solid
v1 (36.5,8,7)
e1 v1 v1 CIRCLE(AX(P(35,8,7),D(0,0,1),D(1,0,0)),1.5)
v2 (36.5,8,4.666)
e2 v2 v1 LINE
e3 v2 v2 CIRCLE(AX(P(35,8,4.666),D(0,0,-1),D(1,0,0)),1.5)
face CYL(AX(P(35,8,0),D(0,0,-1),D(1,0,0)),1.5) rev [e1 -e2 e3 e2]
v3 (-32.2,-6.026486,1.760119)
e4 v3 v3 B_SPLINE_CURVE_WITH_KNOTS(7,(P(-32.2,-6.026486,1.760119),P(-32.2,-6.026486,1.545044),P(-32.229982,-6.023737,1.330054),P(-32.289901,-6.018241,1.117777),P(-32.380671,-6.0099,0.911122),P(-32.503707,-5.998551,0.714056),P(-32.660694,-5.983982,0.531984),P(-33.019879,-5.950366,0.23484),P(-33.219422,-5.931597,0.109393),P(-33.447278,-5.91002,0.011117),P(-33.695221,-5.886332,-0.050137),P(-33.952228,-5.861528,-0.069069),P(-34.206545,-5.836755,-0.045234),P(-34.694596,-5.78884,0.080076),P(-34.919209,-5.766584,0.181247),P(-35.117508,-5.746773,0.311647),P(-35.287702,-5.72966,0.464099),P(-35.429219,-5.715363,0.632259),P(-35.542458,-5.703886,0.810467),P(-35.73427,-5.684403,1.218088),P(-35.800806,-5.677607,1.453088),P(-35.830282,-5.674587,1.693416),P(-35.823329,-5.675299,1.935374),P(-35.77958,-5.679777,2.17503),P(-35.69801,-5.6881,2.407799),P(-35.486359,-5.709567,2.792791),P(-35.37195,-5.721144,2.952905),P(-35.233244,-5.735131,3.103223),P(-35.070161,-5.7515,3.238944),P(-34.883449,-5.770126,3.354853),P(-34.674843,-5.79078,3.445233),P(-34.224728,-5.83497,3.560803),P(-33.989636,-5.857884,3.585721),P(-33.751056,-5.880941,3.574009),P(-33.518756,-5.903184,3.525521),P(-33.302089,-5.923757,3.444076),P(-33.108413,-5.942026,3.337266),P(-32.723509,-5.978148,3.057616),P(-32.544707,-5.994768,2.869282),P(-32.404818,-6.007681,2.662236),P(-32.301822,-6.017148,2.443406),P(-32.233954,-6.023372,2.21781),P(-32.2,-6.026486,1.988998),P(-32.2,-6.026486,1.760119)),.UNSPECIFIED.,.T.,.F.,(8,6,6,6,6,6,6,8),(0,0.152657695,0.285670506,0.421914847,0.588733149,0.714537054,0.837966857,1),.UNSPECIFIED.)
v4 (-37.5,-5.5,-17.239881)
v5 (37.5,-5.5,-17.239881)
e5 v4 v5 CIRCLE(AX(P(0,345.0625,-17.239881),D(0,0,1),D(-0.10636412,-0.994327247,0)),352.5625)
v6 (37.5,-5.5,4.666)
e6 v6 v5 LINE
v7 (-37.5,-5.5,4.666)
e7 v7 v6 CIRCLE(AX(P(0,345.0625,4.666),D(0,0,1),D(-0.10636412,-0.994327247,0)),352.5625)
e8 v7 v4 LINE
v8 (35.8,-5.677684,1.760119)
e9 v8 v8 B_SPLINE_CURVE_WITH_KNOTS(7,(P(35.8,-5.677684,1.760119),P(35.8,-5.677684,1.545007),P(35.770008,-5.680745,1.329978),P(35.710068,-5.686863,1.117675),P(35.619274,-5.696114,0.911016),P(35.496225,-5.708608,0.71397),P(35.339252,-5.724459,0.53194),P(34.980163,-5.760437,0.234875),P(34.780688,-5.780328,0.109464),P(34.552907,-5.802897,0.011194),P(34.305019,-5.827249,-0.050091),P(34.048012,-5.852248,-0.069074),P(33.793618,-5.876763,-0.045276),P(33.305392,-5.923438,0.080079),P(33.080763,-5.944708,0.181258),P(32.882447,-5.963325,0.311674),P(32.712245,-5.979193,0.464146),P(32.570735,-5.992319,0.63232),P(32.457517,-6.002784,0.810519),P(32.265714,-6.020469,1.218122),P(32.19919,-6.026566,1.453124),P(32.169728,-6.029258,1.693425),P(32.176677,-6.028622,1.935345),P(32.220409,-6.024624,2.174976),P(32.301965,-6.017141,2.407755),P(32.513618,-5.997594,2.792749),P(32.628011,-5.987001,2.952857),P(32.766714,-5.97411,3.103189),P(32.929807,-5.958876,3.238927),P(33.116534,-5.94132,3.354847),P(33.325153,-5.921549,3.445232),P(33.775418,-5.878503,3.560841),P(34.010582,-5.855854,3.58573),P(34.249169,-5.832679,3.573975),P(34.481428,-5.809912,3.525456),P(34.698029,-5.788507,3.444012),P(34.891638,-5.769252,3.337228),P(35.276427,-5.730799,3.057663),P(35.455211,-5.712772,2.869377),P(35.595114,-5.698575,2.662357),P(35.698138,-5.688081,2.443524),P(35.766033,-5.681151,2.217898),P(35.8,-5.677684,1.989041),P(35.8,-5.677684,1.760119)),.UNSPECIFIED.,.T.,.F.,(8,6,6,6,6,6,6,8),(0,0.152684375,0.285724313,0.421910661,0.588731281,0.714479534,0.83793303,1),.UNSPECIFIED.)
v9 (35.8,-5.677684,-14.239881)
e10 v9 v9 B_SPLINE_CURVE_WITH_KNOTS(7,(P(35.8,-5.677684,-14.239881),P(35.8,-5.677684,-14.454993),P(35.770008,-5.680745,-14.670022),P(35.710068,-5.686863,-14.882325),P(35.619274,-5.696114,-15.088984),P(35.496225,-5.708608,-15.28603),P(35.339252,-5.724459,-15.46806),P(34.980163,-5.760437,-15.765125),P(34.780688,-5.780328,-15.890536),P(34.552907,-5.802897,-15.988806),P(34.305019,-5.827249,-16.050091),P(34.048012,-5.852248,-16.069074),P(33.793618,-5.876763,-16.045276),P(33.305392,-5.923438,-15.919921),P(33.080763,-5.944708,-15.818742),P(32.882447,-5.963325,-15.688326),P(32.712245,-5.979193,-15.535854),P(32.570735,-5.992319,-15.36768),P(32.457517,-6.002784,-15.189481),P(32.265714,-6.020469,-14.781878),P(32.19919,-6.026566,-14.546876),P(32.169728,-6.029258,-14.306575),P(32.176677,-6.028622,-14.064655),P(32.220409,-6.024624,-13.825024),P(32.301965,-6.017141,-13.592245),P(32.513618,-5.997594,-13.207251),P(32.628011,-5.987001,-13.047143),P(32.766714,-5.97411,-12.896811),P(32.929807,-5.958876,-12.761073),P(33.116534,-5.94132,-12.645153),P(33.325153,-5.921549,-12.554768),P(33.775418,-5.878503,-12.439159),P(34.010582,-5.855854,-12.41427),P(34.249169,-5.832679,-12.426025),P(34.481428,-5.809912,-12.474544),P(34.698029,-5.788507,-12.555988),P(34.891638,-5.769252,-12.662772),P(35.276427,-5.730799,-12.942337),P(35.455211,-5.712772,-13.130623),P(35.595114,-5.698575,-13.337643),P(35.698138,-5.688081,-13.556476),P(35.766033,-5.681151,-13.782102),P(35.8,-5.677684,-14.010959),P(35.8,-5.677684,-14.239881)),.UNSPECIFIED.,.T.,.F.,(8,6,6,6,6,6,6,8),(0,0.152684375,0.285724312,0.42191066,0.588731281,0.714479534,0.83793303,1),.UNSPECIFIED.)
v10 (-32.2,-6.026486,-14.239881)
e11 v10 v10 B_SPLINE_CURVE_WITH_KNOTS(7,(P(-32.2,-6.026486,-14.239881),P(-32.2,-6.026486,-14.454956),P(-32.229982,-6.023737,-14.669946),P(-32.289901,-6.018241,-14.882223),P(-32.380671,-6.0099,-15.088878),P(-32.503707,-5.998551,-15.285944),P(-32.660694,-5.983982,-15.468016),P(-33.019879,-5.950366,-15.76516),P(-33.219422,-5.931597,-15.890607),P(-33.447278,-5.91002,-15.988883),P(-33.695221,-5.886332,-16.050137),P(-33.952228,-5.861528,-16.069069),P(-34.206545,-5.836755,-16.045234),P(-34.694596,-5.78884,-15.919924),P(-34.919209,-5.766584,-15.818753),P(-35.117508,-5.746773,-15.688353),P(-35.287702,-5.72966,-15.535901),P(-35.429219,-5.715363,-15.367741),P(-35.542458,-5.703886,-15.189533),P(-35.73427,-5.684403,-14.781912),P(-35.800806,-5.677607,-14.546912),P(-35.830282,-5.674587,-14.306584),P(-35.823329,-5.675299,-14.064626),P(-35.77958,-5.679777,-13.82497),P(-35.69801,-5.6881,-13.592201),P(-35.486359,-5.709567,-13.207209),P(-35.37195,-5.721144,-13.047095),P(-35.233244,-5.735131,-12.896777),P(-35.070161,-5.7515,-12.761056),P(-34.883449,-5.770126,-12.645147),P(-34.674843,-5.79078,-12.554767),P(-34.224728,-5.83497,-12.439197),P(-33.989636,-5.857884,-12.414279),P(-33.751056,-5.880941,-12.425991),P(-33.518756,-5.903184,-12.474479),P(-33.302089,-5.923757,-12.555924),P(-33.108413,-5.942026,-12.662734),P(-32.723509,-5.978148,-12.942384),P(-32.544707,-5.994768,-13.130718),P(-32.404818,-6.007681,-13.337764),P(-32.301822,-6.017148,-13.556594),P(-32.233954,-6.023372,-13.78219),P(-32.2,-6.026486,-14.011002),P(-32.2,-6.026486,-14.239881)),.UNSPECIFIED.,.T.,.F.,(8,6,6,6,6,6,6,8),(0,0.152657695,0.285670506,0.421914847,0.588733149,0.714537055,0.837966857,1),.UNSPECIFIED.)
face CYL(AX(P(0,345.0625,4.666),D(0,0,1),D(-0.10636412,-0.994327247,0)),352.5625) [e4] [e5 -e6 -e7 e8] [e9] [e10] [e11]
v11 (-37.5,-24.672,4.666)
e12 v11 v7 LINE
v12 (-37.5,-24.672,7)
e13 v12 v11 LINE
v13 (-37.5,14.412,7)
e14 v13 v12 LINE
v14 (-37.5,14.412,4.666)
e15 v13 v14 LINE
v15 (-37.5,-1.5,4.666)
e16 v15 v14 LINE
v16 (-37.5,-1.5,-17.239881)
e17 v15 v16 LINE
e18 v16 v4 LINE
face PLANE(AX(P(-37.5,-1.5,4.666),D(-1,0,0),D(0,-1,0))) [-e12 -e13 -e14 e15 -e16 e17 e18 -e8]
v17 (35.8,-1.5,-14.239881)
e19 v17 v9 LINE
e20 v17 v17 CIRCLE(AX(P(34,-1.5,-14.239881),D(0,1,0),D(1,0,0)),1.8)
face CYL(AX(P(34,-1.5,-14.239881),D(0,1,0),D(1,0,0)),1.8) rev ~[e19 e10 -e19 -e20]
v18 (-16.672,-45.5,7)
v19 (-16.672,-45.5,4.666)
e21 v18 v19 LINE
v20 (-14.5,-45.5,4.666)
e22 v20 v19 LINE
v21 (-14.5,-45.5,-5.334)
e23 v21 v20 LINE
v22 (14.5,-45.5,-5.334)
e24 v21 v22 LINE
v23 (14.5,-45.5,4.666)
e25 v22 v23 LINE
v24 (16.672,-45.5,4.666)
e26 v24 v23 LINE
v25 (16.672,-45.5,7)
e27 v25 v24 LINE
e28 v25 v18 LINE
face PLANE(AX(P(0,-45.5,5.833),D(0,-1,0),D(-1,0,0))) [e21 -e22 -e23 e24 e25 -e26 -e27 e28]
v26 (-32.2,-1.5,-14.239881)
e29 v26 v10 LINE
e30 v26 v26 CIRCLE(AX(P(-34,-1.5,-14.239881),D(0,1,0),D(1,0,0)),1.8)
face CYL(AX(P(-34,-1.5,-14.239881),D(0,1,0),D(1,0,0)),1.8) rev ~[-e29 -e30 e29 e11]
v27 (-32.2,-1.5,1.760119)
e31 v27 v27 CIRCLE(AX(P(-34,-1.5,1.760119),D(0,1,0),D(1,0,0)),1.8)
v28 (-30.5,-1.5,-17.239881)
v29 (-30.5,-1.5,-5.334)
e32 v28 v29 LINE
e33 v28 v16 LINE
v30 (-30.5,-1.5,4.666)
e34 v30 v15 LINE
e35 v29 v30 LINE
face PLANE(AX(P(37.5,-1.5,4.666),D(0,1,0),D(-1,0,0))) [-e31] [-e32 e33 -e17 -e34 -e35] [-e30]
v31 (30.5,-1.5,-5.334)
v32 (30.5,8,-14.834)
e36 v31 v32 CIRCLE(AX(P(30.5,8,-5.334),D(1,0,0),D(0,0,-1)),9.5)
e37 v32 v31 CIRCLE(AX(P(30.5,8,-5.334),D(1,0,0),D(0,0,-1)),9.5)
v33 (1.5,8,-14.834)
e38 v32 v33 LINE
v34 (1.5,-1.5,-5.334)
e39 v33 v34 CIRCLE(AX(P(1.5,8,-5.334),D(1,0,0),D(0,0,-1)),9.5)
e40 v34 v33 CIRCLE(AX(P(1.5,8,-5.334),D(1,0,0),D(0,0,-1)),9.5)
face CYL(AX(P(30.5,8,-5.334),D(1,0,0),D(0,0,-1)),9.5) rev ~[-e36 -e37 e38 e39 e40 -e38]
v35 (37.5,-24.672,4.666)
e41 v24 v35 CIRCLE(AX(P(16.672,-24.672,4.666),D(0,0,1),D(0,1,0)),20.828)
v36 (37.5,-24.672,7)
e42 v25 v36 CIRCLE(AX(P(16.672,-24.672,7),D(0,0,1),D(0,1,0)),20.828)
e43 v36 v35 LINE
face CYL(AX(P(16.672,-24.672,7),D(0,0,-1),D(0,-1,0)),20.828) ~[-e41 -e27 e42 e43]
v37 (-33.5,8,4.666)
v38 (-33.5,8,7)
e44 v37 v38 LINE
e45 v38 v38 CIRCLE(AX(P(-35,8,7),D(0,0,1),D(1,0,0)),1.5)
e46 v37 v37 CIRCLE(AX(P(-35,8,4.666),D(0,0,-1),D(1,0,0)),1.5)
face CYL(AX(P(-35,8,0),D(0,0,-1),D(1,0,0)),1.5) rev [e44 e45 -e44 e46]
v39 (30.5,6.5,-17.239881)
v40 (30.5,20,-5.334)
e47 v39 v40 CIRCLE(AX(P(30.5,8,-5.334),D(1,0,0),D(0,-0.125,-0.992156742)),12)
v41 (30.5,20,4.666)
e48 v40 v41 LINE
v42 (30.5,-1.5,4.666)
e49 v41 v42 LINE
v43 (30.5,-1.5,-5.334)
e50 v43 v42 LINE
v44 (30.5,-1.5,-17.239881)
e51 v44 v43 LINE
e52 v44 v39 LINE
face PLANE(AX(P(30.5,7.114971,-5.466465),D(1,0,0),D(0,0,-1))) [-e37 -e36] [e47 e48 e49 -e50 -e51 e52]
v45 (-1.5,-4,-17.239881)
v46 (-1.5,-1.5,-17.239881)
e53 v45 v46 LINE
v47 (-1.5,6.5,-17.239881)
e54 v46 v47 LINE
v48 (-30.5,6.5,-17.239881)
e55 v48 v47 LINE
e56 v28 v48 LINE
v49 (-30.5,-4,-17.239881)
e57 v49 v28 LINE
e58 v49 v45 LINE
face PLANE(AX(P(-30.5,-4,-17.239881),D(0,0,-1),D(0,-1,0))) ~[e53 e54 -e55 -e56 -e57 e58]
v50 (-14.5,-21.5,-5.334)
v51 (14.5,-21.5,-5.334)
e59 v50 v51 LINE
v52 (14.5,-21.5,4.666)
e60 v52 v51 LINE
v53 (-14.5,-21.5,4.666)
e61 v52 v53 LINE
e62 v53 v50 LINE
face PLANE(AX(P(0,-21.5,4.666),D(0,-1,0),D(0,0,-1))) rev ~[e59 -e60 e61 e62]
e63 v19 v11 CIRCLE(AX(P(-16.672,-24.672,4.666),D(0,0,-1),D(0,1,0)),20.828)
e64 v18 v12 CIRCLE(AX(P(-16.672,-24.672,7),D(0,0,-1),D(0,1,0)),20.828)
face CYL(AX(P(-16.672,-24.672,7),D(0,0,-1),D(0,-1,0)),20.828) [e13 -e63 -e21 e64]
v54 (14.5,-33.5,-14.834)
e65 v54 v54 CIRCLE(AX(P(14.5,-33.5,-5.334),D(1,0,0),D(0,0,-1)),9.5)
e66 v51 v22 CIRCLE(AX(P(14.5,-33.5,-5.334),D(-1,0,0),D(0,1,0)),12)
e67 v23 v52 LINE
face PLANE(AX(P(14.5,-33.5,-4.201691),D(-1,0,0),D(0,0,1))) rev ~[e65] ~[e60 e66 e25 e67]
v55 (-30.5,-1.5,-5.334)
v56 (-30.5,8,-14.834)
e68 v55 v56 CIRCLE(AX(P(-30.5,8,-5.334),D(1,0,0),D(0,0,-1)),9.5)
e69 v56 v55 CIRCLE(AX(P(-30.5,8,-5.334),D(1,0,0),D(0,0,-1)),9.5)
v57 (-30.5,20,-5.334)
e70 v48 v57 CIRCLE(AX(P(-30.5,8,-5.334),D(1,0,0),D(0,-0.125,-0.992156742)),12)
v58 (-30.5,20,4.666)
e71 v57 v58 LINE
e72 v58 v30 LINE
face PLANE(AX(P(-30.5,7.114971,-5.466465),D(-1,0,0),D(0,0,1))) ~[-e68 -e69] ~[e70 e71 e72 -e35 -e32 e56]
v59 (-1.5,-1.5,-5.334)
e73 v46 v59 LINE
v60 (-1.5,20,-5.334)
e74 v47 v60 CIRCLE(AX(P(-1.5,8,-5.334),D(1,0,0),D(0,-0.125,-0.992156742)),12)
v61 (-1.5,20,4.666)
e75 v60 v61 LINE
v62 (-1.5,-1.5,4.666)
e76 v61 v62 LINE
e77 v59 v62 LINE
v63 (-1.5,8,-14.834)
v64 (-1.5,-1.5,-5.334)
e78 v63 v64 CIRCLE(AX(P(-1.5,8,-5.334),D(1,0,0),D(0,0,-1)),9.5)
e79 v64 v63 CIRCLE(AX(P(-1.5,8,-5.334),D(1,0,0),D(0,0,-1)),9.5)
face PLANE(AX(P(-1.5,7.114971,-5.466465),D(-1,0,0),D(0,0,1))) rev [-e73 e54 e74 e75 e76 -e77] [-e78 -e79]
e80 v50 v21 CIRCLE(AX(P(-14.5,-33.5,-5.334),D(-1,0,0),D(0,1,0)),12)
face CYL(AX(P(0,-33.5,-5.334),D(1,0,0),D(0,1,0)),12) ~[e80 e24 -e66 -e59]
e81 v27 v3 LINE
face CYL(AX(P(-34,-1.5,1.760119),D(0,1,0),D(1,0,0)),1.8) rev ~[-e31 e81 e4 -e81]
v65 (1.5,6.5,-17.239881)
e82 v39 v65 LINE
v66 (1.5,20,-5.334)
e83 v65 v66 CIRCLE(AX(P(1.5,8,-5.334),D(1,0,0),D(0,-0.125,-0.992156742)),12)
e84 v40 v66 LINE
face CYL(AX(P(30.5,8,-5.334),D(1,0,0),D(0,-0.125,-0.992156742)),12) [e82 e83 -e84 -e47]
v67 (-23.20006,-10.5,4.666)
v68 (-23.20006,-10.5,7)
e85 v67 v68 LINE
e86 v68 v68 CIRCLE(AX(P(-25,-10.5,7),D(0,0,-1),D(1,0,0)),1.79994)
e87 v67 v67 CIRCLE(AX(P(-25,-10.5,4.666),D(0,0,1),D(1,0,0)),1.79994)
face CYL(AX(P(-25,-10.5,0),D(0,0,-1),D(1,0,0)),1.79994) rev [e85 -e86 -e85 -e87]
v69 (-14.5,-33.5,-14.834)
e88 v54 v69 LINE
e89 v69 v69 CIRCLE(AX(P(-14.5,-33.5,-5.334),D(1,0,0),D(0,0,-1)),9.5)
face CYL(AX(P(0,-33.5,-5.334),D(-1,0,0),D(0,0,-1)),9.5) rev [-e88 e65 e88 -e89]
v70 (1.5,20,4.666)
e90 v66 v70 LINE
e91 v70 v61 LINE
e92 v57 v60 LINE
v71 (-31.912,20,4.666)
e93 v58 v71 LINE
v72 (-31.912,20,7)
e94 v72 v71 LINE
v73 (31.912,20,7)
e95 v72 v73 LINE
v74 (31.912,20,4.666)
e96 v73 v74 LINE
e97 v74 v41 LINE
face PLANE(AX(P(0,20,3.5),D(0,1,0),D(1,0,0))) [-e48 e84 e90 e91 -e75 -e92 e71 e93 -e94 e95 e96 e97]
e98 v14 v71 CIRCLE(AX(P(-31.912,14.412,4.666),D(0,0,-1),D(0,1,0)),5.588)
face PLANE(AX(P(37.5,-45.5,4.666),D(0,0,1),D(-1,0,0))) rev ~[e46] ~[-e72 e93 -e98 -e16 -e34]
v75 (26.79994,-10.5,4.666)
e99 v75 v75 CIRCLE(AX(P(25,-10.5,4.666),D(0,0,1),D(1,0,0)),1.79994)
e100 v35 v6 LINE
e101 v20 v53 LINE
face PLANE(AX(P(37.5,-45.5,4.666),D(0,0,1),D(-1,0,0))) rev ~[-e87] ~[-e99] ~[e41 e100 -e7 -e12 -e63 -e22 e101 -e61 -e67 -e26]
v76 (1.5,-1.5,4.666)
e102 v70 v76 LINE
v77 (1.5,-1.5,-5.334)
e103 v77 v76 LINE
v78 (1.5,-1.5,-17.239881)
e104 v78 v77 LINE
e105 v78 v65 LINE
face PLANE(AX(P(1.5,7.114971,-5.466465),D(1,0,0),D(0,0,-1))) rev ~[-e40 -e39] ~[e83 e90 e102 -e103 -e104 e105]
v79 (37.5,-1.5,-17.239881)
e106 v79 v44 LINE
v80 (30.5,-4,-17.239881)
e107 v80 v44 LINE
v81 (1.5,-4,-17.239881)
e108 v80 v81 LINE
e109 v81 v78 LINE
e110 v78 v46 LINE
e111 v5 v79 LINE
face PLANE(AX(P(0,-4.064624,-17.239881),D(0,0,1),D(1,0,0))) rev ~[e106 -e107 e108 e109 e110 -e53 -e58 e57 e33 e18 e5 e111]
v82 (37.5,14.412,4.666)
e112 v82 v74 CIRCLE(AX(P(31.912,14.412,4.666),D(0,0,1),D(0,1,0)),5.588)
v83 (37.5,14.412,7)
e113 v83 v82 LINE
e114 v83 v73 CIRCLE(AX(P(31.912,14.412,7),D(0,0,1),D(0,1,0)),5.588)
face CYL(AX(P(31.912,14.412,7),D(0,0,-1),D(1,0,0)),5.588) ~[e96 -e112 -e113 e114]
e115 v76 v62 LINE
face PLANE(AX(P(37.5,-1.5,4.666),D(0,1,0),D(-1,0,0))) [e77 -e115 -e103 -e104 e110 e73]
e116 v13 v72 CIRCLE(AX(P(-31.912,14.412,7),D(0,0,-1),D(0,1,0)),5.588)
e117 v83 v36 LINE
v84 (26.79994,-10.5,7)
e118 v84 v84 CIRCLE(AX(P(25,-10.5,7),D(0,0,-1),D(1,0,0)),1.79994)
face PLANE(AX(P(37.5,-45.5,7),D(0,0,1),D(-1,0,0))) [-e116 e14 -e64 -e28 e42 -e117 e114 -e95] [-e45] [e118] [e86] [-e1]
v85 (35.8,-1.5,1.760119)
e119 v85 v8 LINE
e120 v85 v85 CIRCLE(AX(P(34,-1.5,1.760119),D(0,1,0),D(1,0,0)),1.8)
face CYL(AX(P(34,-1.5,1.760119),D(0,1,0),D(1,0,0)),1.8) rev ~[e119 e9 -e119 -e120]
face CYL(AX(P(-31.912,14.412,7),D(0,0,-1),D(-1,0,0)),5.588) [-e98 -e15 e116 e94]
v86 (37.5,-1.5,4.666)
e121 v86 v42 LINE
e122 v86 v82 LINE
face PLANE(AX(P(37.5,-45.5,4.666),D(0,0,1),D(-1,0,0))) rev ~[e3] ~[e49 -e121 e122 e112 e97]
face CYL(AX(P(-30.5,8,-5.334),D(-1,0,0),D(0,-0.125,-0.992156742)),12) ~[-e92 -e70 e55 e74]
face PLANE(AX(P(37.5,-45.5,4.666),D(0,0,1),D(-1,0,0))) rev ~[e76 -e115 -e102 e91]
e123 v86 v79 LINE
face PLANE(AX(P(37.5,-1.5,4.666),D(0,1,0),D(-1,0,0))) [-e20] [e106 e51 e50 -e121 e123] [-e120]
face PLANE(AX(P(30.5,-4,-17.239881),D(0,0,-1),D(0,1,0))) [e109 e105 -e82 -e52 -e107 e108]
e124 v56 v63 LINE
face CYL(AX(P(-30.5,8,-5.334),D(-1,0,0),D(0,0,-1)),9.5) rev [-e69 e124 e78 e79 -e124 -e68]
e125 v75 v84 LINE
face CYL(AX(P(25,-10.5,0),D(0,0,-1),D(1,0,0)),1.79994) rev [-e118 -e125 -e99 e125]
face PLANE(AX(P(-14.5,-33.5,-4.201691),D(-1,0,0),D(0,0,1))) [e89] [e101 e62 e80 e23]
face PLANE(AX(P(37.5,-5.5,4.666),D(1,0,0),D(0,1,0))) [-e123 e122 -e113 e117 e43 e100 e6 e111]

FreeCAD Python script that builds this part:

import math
import FreeCAD as App
import Part
import Sketcher

V = App.Vector
Q = App.Units.Quantity


def edges_at(feature, points):
    """Names of the edges that pass closest to the given points."""
    edges = feature.Shape.Edges
    near = lambda p: min(range(len(edges)), key=lambda i: edges[i].distToShape(Part.Vertex(*p))[0])
    return sorted({f"Edge{near(p) + 1}" for p in points})


def add_polygon(sketch, points):
    """Adds a closed chain of lines whose ends are joined by coincident constraints."""
    first, n = sketch.GeometryCount, len(points)
    for a, b in zip(points, points[1:] + points[:1]):
        sketch.addGeometry(Part.LineSegment(App.Vector(*a, 0), App.Vector(*b, 0)), False)
    for i in range(n):
        sketch.addConstraint(Sketcher.Constraint("Coincident", first + i, 2, first + (i + 1) % n, 1))

doc = App.newDocument("Part")
body = doc.addObject("PartDesign::Body", "Body")

# Sketch on XY plane
sketch1 = doc.addObject("Sketcher::SketchObject", "Sketch")
body.addObject(sketch1)
sketch1.AttachmentSupport = (doc.XY_Plane, [""])
sketch1.MapMode = "FlatFace"
sketch1.addGeometry([
    Part.LineSegment(V(30, -10.5, 0), V(37.5, -10.5, 0)),  # 0
    Part.LineSegment(V(37.5, -10.5, 0), V(37.5, 10.5, 0)),  # 1
    Part.LineSegment(V(37.5, 10.5, 0), V(-37.5, 10.5, 0)),  # 2
    Part.LineSegment(V(-37.5, 10.5, 0), V(-37.5, -10.5, 0)),  # 3
    Part.LineSegment(V(-37.5, -10.5, 0), V(-30, -10.5, 0)),  # 4
    Part.ArcOfCircle(Part.Circle(V(-25, -10.5, 0), V(0, 0, 1), 5), math.radians(180), math.radians(360)),  # 5
    Part.LineSegment(V(-20, -10.5, 0), V(-5, -10.5, 0)),  # 6
    Part.ArcOfCircle(Part.Circle(V(0, -10.5, 0), V(0, 0, 1), 5), math.radians(180), math.radians(360)),  # 7
    Part.LineSegment(V(5, -10.5, 0), V(20, -10.5, 0)),  # 8
    Part.ArcOfCircle(Part.Circle(V(25, -10.5, 0), V(0, 0, 1), 5), math.radians(180), math.radians(360)),  # 9
    Part.Circle(V(25, -10.5, 0), V(0, 0, 1), 1.79994),  # 10
    Part.Circle(V(0, -10.5, 0), V(0, 0, 1), 1.79994),  # 11
    Part.Circle(V(-25, -10.5, 0), V(0, 0, 1), 1.79994),  # 12
    Part.Circle(V(35, 8, 0), V(0, 0, 1), 1.5),  # 13
    Part.Circle(V(15, 8, 0), V(0, 0, 1), 1.5),  # 14
    Part.Circle(V(10, 8, 0), V(0, 0, 1), 1.5),  # 15
    Part.Circle(V(-10, 8, 0), V(0, 0, 1), 1.5),  # 16
    Part.Circle(V(-15, 8, 0), V(0, 0, 1), 1.5),  # 17
    Part.Circle(V(-35, 8, 0), V(0, 0, 1), 1.5),  # 18
], False)
sketch1.addConstraint([
    Sketcher.Constraint("Coincident", 0, 2, 1, 1),
    Sketcher.Constraint("Coincident", 1, 2, 2, 1),
    Sketcher.Constraint("Coincident", 2, 2, 3, 1),
    Sketcher.Constraint("Coincident", 3, 2, 4, 1),
    Sketcher.Constraint("Coincident", 4, 2, 5, 1),
    Sketcher.Constraint("Coincident", 5, 2, 6, 1),
    Sketcher.Constraint("Coincident", 6, 2, 7, 1),
    Sketcher.Constraint("Coincident", 7, 2, 8, 1),
    Sketcher.Constraint("Coincident", 8, 2, 9, 1),
    Sketcher.Constraint("Coincident", 9, 2, 0, 1),
    Sketcher.Constraint("Horizontal", 0),
    Sketcher.Constraint("Vertical", 1),
    Sketcher.Constraint("Horizontal", 2),
    Sketcher.Constraint("Vertical", 3),
    Sketcher.Constraint("Horizontal", 4),
    Sketcher.Constraint("Horizontal", 6),
    Sketcher.Constraint("Horizontal", 8),
    Sketcher.Constraint("Coincident", 10, 3, 9, 3),
    Sketcher.Constraint("Coincident", 11, 3, 7, 3),
    Sketcher.Constraint("Coincident", 12, 3, 5, 3),
    Sketcher.Constraint("Equal", 5, 7),
    Sketcher.Constraint("Equal", 7, 9),
    Sketcher.Constraint("Equal", 10, 11),
    Sketcher.Constraint("Equal", 11, 12),
    Sketcher.Constraint("Equal", 13, 14),
    Sketcher.Constraint("Equal", 14, 15),
    Sketcher.Constraint("Equal", 15, 16),
    Sketcher.Constraint("Equal", 16, 17),
    Sketcher.Constraint("Equal", 17, 18),
    Sketcher.Constraint("Symmetric", 0, 2, 2, 2, -1, 1),
    Sketcher.Constraint("Symmetric", 5, 3, 9, 3, -2),
    Sketcher.Constraint("Symmetric", 15, 3, 16, 3, -2),
    Sketcher.Constraint("Symmetric", 14, 3, 17, 3, -2),
    Sketcher.Constraint("Symmetric", 13, 3, 18, 3, -2),
    Sketcher.Constraint("Symmetric", 6, 2, 7, 2, -2),
    Sketcher.Constraint("Horizontal", 5, 3, 7, 3),
    Sketcher.Constraint("Horizontal", 13, 3, 14, 3),
    Sketcher.Constraint("Horizontal", 14, 3, 15, 3),
    Sketcher.Constraint("Horizontal", 12, 3, 0, 2),
    Sketcher.Constraint("Horizontal", 0, 2, 3, 2),
    Sketcher.Constraint("Horizontal", 4, 2, 5, 2),
    Sketcher.Constraint("Diameter", 13, Q("3 mm")),
    Sketcher.Constraint("Radius", 5, Q("5 mm")),
    Sketcher.Constraint("DistanceX", 2, 2, 2, 1, Q("75 mm")),
    Sketcher.Constraint("DistanceX", 6, 1, 6, 2, Q("15 mm")),
    Sketcher.Constraint("DistanceY", 1, 1, 1, 2, Q("21 mm")),
    Sketcher.Constraint("DistanceX", -1, 1, 13, 3, Q("35 mm")),
    Sketcher.Constraint("DistanceY", -1, 1, 13, 3, Q("8 mm")),
    Sketcher.Constraint("DistanceX", -1, 1, 14, 3, Q("15 mm")),
    Sketcher.Constraint("DistanceX", -1, 1, 15, 3, Q("10 mm")),
    Sketcher.Constraint("Diameter", 10, Q("3.59988 mm")),
])
pad1 = doc.addObject("PartDesign::Pad", "Pad")
body.addObject(pad1)
pad1.Profile = sketch1
pad1.Length = 7

# Sketch on XZ plane
sketch2 = doc.addObject("Sketcher::SketchObject", "Sketch001")
body.addObject(sketch2)
sketch2.AttachmentSupport = (doc.XZ_Plane, [""])
sketch2.MapMode = "FlatFace"
sketch2.AttachmentOffset = App.Placement(V(0, 0, -2.25), App.Rotation())
add_polygon(sketch2, [(-37.5, 7), (-37.5, 20.1), (37.5, 20.1), (37.5, 7)])  # lines 0-3
sketch2.addGeometry(Part.Circle(V(-31.00014, 13.55, 0), V(0, 0, 1), 1.349845), False)  # 4
sketch2.addGeometry(Part.Circle(V(-25, 13.55, 0), V(0, 0, 1), 2.499995), False)  # 5
sketch2.addGeometry(Part.Circle(V(-18.99986, 13.55, 0), V(0, 0, 1), 1.349845), False)  # 6
sketch2.addGeometry(Part.Circle(V(-6.00014, 13.55, 0), V(0, 0, 1), 1.349845), False)  # 7
sketch2.addGeometry(Part.Circle(V(0, 13.55, 0), V(0, 0, 1), 2.499995), False)  # 8
sketch2.addGeometry(Part.Circle(V(6.00014, 13.55, 0), V(0, 0, 1), 1.349845), False)  # 9
sketch2.addGeometry(Part.Circle(V(18.99986, 13.55, 0), V(0, 0, 1), 1.349845), False)  # 10
sketch2.addGeometry(Part.Circle(V(25, 13.55, 0), V(0, 0, 1), 2.499995), False)  # 11
sketch2.addGeometry(Part.Circle(V(31.00014, 13.55, 0), V(0, 0, 1), 1.349845), False)  # 12
sketch2.addConstraint([
    Sketcher.Constraint("Vertical", 0),
    Sketcher.Constraint("Horizontal", 1),
    Sketcher.Constraint("Vertical", 2),
    Sketcher.Constraint("Horizontal", 3),
    Sketcher.Constraint("Equal", 4, 6),
    Sketcher.Constraint("Equal", 6, 7),
    Sketcher.Constraint("Equal", 5, 8),
    Sketcher.Constraint("Equal", 7, 9),
    Sketcher.Constraint("Equal", 9, 10),
    Sketcher.Constraint("Equal", 8, 11),
    Sketcher.Constraint("Equal", 10, 12),
    Sketcher.Constraint("Symmetric", 7, 3, 9, 3, -2),
    Sketcher.Constraint("Symmetric", 6, 3, 10, 3, -2),
    Sketcher.Constraint("Symmetric", 5, 3, 11, 3, -2),
    Sketcher.Constraint("Symmetric", 4, 3, 12, 3, -2),
    Sketcher.Constraint("PointOnObject", 8, 3, -2),
    Sketcher.Constraint("Horizontal", 4, 3, 5, 3),
    Sketcher.Constraint("Horizontal", 5, 3, 6, 3),
    Sketcher.Constraint("Horizontal", 6, 3, 7, 3),
    Sketcher.Constraint("Horizontal", 7, 3, 8, 3),
    Sketcher.Constraint("DistanceX", 1, 1, 1, 2, Q("75 mm")),
    Sketcher.Constraint("DistanceY", 0, 1, 0, 2, Q("13.1 mm")),
    Sketcher.Constraint("DistanceX", 5, 3, -1, 1, Q("25 mm")),
    Sketcher.Constraint("DistanceY", -1, 1, 2, 2, Q("7 mm")),
    Sketcher.Constraint("DistanceX", 4, 3, 7, 3, Q("25 mm")),
    Sketcher.Constraint("DistanceX", 6, 3, 9, 3, Q("25 mm")),
    Sketcher.Constraint("DistanceX", 0, 2, -1, 1, Q("37.5 mm")),
    Sketcher.Constraint("Diameter", 4, Q("2.69969 mm")),
    Sketcher.Constraint("Diameter", 5, Q("4.99999 mm")),
    Sketcher.Constraint("DistanceY", -1, 1, 4, 3, Q("13.55 mm")),
    Sketcher.Constraint("DistanceX", 4, 3, -1, 1, Q("31.00014 mm")),
])
pad2 = doc.addObject("PartDesign::Pad", "Pad001")
body.addObject(pad2)
pad2.Profile = sketch2
pad2.Length = 6.988

# Sketch on XZ plane
sketch3 = doc.addObject("Sketcher::SketchObject", "Sketch002")
body.addObject(sketch3)
sketch3.AttachmentSupport = (doc.XZ_Plane, [""])
sketch3.MapMode = "FlatFace"
sketch3.AttachmentOffset = App.Placement(V(0, 0, -2.25), App.Rotation())
sketch3.addGeometry([
    Part.Circle(V(-31.00014, 13.55, 0), V(0, 0, 1), 2.699944),  # 0
    Part.Circle(V(-31.00014, 13.55, 0), V(0, 0, 1), 1.349845),  # 1
    Part.Circle(V(-18.99986, 13.55, 0), V(0, 0, 1), 2.699944),  # 2
    Part.Circle(V(-18.99986, 13.55, 0), V(0, 0, 1), 1.349845),  # 3
    Part.Circle(V(-6.00014, 13.55, 0), V(0, 0, 1), 2.699944),  # 4
    Part.Circle(V(-6.00014, 13.55, 0), V(0, 0, 1), 1.349845),  # 5
    Part.Circle(V(6.00014, 13.55, 0), V(0, 0, 1), 2.699944),  # 6
    Part.Circle(V(6.00014, 13.55, 0), V(0, 0, 1), 1.349845),  # 7
    Part.Circle(V(18.99986, 13.55, 0), V(0, 0, 1), 2.699944),  # 8
    Part.Circle(V(18.99986, 13.55, 0), V(0, 0, 1), 1.349845),  # 9
    Part.Circle(V(31.00014, 13.55, 0), V(0, 0, 1), 2.699944),  # 10
    Part.Circle(V(31.00014, 13.55, 0), V(0, 0, 1), 1.349845),  # 11
], False)
sketch3.addConstraint([
    Sketcher.Constraint("Coincident", 1, 3, 0, 3),
    Sketcher.Constraint("Coincident", 3, 3, 2, 3),
    Sketcher.Constraint("Coincident", 5, 3, 4, 3),
    Sketcher.Constraint("Coincident", 7, 3, 6, 3),
    Sketcher.Constraint("Coincident", 9, 3, 8, 3),
    Sketcher.Constraint("Coincident", 11, 3, 10, 3),
    Sketcher.Constraint("Equal", 0, 2),
    Sketcher.Constraint("Equal", 1, 3),
    Sketcher.Constraint("Equal", 2, 4),
    Sketcher.Constraint("Equal", 3, 5),
    Sketcher.Constraint("Equal", 4, 6),
    Sketcher.Constraint("Equal", 5, 7),
    Sketcher.Constraint("Equal", 6, 8),
    Sketcher.Constraint("Equal", 7, 9),
    Sketcher.Constraint("Equal", 8, 10),
    Sketcher.Constraint("Equal", 9, 11),
    Sketcher.Constraint("Symmetric", 4, 3, 6, 3, -2),
    Sketcher.Constraint("Symmetric", 2, 3, 8, 3, -2),
    Sketcher.Constraint("Symmetric", 0, 3, 10, 3, -2),
    Sketcher.Constraint("Horizontal", 1, 3, 2, 3),
    Sketcher.Constraint("Horizontal", 3, 3, 4, 3),
    Sketcher.Constraint("DistanceX", 0, 3, 4, 3, Q("25 mm")),
    Sketcher.Constraint("DistanceX", 2, 3, 6, 3, Q("25 mm")),
    Sketcher.Constraint("Diameter", 1, Q("2.69969 mm")),
    Sketcher.Constraint("DistanceY", -1, 1, 0, 3, Q("13.55 mm")),
    Sketcher.Constraint("Diameter", 0, Q("5.399888 mm")),
    Sketcher.Constraint("DistanceX", 0, 3, -1, 1, Q("31.00014 mm")),
])
pocket1 = doc.addObject("PartDesign::Pocket", "Pocket")
body.addObject(pocket1)
pocket1.Profile = sketch3
pocket1.Length = 2.5
pocket1.Reversed = True

# Sketch on XZ plane
sketch4 = doc.addObject("Sketcher::SketchObject", "Sketch003")
body.addObject(sketch4)
sketch4.AttachmentSupport = (doc.XZ_Plane, [""])
sketch4.MapMode = "FlatFace"
sketch4.AttachmentOffset = App.Placement(V(0, 0, -2.25), App.Rotation())
add_polygon(sketch4, [(-37.5, 7), (-37.5, 20.1), (37.5, 20.1), (37.5, 7)])  # lines 0-3
sketch4.addConstraint([
    Sketcher.Constraint("Vertical", 0),
    Sketcher.Constraint("Horizontal", 1),
    Sketcher.Constraint("Vertical", 2),
    Sketcher.Constraint("Horizontal", 3),
    Sketcher.Constraint("DistanceX", 1, 1, 1, 2, Q("75 mm")),
    Sketcher.Constraint("DistanceY", 0, 1, 0, 2, Q("13.1 mm")),
    Sketcher.Constraint("DistanceY", -1, 1, 2, 2, Q("7 mm")),
    Sketcher.Constraint("DistanceX", 0, 2, -1, 1, Q("37.5 mm")),
])
pocket2 = doc.addObject("PartDesign::Pocket", "Pocket001")
body.addObject(pocket2)
pocket2.Profile = sketch4
pocket2.Length = 21.082
pocket2.Reversed = True

# Sketch on XZ plane
sketch5 = doc.addObject("Sketcher::SketchObject", "Sketch004")
body.addObject(sketch5)
sketch5.AttachmentSupport = (doc.XZ_Plane, [""])
sketch5.MapMode = "FlatFace"
sketch5.AttachmentOffset = App.Placement(V(0, 0, -10.5), App.Rotation())
add_polygon(sketch5, [(-37.5, 0), (-37.5, 7), (37.5, 7), (37.5, 0)])  # lines 0-3
sketch5.addConstraint([
    Sketcher.Constraint("Vertical", 0),
    Sketcher.Constraint("Horizontal", 1),
    Sketcher.Constraint("Vertical", 2),
    Sketcher.Constraint("Horizontal", 3),
    Sketcher.Constraint("Symmetric", 2, 2, 3, 2, -1, 1),
    Sketcher.Constraint("DistanceX", 1, 1, 1, 2, Q("75 mm")),
    Sketcher.Constraint("DistanceY", 0, 1, 0, 2, Q("7 mm")),
])
pad3 = doc.addObject("PartDesign::Pad", "Pad002")
body.addObject(pad3)
pad3.Profile = sketch5
pad3.Length = 9.5
pad3.Reversed = True

# Sketch on XY plane
sketch6 = doc.addObject("Sketcher::SketchObject", "Sketch005")
body.addObject(sketch6)
sketch6.AttachmentSupport = (doc.XY_Plane, [""])
sketch6.MapMode = "FlatFace"
add_polygon(sketch6, [(37.5, 20), (37.5, -18.030205), (-37.5, -18.030205), (-37.5, 20)])  # lines 0-3
sketch6.addConstraint([
    Sketcher.Constraint("Vertical", 0),
    Sketcher.Constraint("Horizontal", 1),
    Sketcher.Constraint("Vertical", 2),
    Sketcher.Constraint("Horizontal", 3),
    Sketcher.Constraint("DistanceX", 1, 2, 1, 1, Q("75 mm")),
    Sketcher.Constraint("DistanceY", -1, 1, 2, 2, Q("20 mm")),
    Sketcher.Constraint("DistanceX", -1, 1, 0, 2, Q("37.5 mm")),
    Sketcher.Constraint("DistanceY", 0, 2, 0, 1, Q("38.030205 mm")),
])
pocket3 = doc.addObject("PartDesign::Pocket", "Pocket002")
body.addObject(pocket3)
pocket3.Profile = sketch6
pocket3.Length = 4.666
pocket3.Reversed = True

# Sketch on XZ plane
sketch7 = doc.addObject("Sketcher::SketchObject", "Sketch006")
body.addObject(sketch7)
sketch7.AttachmentSupport = (doc.XZ_Plane, [""])
sketch7.MapMode = "FlatFace"
sketch7.AttachmentOffset = App.Placement(V(0, 0, 45.5), App.Rotation())
add_polygon(sketch7, [(37.5, 4.666), (37.5, 7), (-37.5, 7), (-37.5, 4.666)])  # lines 0-3
sketch7.addConstraint([
    Sketcher.Constraint("Vertical", 0),
    Sketcher.Constraint("Horizontal", 1),
    Sketcher.Constraint("Vertical", 2),
    Sketcher.Constraint("Horizontal", 3),
    Sketcher.Constraint("DistanceX", 1, 2, 1, 1, Q("75 mm")),
    Sketcher.Constraint("DistanceY", -1, 1, 0, 2, Q("7 mm")),
    Sketcher.Constraint("DistanceX", -1, 1, 0, 2, Q("37.5 mm")),
    Sketcher.Constraint("DistanceY", 0, 1, 0, 2, Q("2.334 mm")),
])
pad4 = doc.addObject("PartDesign::Pad", "Pad003")
body.addObject(pad4)
pad4.Profile = sketch7
pad4.Length = 35
pad4.Reversed = True

# Sketch on XY plane
sketch8 = doc.addObject("Sketcher::SketchObject", "Sketch007")
body.addObject(sketch8)
sketch8.AttachmentSupport = (doc.XY_Plane, [""])
sketch8.MapMode = "FlatFace"
sketch8.AttachmentOffset = App.Placement(V(0, 0, 4.666), App.Rotation())
sketch8.addGeometry([
    Part.Circle(V(25, -10.5, 0), V(0, 0, 1), 1.79994),
    Part.Circle(V(0, -10.5, 0), V(0, 0, 1), 1.79994),
    Part.Circle(V(-25, -10.5, 0), V(0, 0, 1), 1.79994),
], False)
sketch8.addConstraint([
    Sketcher.Constraint("Equal", 0, 1),
    Sketcher.Constraint("Equal", 1, 2),
    Sketcher.Constraint("Symmetric", 0, 3, 2, 3, -2),
    Sketcher.Constraint("PointOnObject", 1, 3, -2),
    Sketcher.Constraint("Horizontal", 0, 3, 1, 3),
    Sketcher.Constraint("DistanceX", -1, 1, 0, 3, Q("25 mm")),
    Sketcher.Constraint("DistanceY", 0, 3, -1, 1, Q("10.5 mm")),
    Sketcher.Constraint("Diameter", 0, Q("3.59988 mm")),
])
pocket4 = doc.addObject("PartDesign::Pocket", "Pocket003")
body.addObject(pocket4)
pocket4.Profile = sketch8
pocket4.Length = 5
pocket4.Reversed = True

# Sketch on XY plane
sketch9 = doc.addObject("Sketcher::SketchObject", "Sketch008")
body.addObject(sketch9)
sketch9.AttachmentSupport = (doc.XY_Plane, [""])
sketch9.MapMode = "FlatFace"
sketch9.AttachmentOffset = App.Placement(V(0, 0, 7), App.Rotation())
add_polygon(sketch9, [(-20.522323, 15.612576), (-20.522323, 1.995274), (24.131207, 1.995274), (24.131207, 15.612576)])  # lines 0-3
add_polygon(sketch9, [(-7.365324, -8.293911), (-7.365324, -14.281449), (4.362942, -14.281449), (4.362942, -8.293911)])  # lines 4-7
sketch9.addConstraint([
    Sketcher.Constraint("Vertical", 0),
    Sketcher.Constraint("Horizontal", 1),
    Sketcher.Constraint("Vertical", 2),
    Sketcher.Constraint("Horizontal", 3),
    Sketcher.Constraint("Vertical", 4),
    Sketcher.Constraint("Horizontal", 5),
    Sketcher.Constraint("Vertical", 6),
    Sketcher.Constraint("Horizontal", 7),
    Sketcher.Constraint("DistanceY", 0, 2, 0, 1, Q("13.617302 mm")),
    Sketcher.Constraint("DistanceX", 0, 2, 4, 2, Q("13.156999 mm")),
    Sketcher.Constraint("DistanceX", 1, 1, 1, 2, Q("44.65353 mm")),
    Sketcher.Constraint("DistanceX", 5, 1, 5, 2, Q("11.728266 mm")),
    Sketcher.Constraint("DistanceY", 4, 2, 4, 1, Q("5.987538 mm")),
    Sketcher.Constraint("DistanceY", 4, 2, -1, 1, Q("14.281449 mm")),
    Sketcher.Constraint("DistanceX", -1, 1, 5, 2, Q("4.362942 mm")),
    Sketcher.Constraint("DistanceY", -1, 1, 0, 2, Q("1.995274 mm")),
])
pad5 = doc.addObject("PartDesign::Pad", "Pad004")
body.addObject(pad5)
pad5.Profile = sketch9
pad5.Length = 2.334
pad5.Reversed = True
body2 = doc.addObject("PartDesign::Body", "Body001")

# Sketch on YZ plane
sketch10 = doc.addObject("Sketcher::SketchObject", "Sketch009")
body2.addObject(sketch10)
sketch10.AttachmentSupport = (doc.getObject("YZ_Plane001"), [""])
sketch10.MapMode = "FlatFace"
sketch10.AttachmentOffset = App.Placement(V(0, 0, 30.5), App.Rotation())
sketch10.addGeometry([
    Part.LineSegment(V(-4, 4.666, 0), V(-4, -17.239881, 0)),  # 0
    Part.LineSegment(V(-4, -17.239881, 0), V(6.5, -17.239881, 0)),  # 1
    Part.ArcOfCircle(Part.Circle(V(8, -5.334, 0), V(0, 0, 1), 12), math.radians(-97.180756), math.radians(0)),  # 2
    Part.LineSegment(V(20, -5.334, 0), V(20, 4.666, 0)),  # 3
    Part.LineSegment(V(20, 4.666, 0), V(-4, 4.666, 0)),  # 4
    Part.Circle(V(8, -5.334, 0), V(0, 0, 1), 9.5),  # 5
], False)
sketch10.addConstraint([
    Sketcher.Constraint("Coincident", 0, 2, 1, 1),
    Sketcher.Constraint("Coincident", 1, 2, 2, 1),
    Sketcher.Constraint("Tangent", 2, 2, 3, 1),
    Sketcher.Constraint("Coincident", 3, 2, 4, 1),
    Sketcher.Constraint("Coincident", 4, 2, 0, 1),
    Sketcher.Constraint("Vertical", 0),
    Sketcher.Constraint("Horizontal", 1),
    Sketcher.Constraint("Vertical", 3),
    Sketcher.Constraint("Horizontal", 4),
    Sketcher.Constraint("Coincident", 5, 3, 2, 3),
    Sketcher.Constraint("Diameter", 5, Q("19 mm")),
    Sketcher.Constraint("Radius", 2, Q("12 mm")),
    Sketcher.Constraint("DistanceX", 4, 2, 4, 1, Q("24 mm")),
    Sketcher.Constraint("DistanceY", 3, 1, 3, 2, Q("10 mm")),
    Sketcher.Constraint("DistanceX", 1, 1, 1, 2, Q("10.5 mm")),
    Sketcher.Constraint("DistanceX", -1, 1, 2, 3, Q("8 mm")),
    Sketcher.Constraint("DistanceY", 2, 3, -1, 1, Q("5.334 mm")),
])
pad6 = doc.addObject("PartDesign::Pad", "Pad005")
body2.addObject(pad6)
pad6.Profile = sketch10
pad6.Length = 29
pad6.Reversed = True
body3 = doc.addObject("PartDesign::Body", "Body002")
body3.AllowCompound = True
doc.recompute()

mirroring = doc.addObject("Part::Mirroring", "Mirroring")
mirroring.Source = body2
mirroring.Base = V(0, 0, 0)
mirroring.Normal = V(1, 0, 0)
body3.BaseFeature = mirroring
doc.recompute()

boolean = doc.addObject("PartDesign::Boolean", "Boolean")
body3.addObject(boolean)
boolean.Type = "Fuse"
boolean.addObjects([body2])
doc.recompute()

boolean2 = doc.addObject("PartDesign::Boolean", "Boolean001")
body3.addObject(boolean2)
boolean2.Type = "Fuse"
boolean2.addObjects([body])

# Sketch on YZ plane
sketch11 = doc.addObject("Sketcher::SketchObject", "Sketch010")
body3.addObject(sketch11)
sketch11.AttachmentSupport = (doc.getObject("YZ_Plane002"), [""])
sketch11.MapMode = "FlatFace"
sketch11.addGeometry([
    Part.LineSegment(V(-45.5, 4.666, 0), V(-45.5, -5.334, 0)),  # 0
    Part.ArcOfCircle(Part.Circle(V(-33.5, -5.334, 0), V(0, 0, 1), 12), math.radians(180), math.radians(360)),  # 1
    Part.LineSegment(V(-21.5, -5.334, 0), V(-21.5, 4.666, 0)),  # 2
    Part.LineSegment(V(-21.5, 4.666, 0), V(-45.5, 4.666, 0)),  # 3
    Part.Circle(V(-33.5, -5.334, 0), V(0, 0, 1), 9.5),  # 4
], False)
sketch11.addConstraint([
    Sketcher.Constraint("Tangent", 0, 2, 1, 1),
    Sketcher.Constraint("Tangent", 1, 2, 2, 1),
    Sketcher.Constraint("Coincident", 2, 2, 3, 1),
    Sketcher.Constraint("Coincident", 3, 2, 0, 1),
    Sketcher.Constraint("Vertical", 0),
    Sketcher.Constraint("Vertical", 2),
    Sketcher.Constraint("Horizontal", 3),
    Sketcher.Constraint("Coincident", 4, 3, 1, 3),
    Sketcher.Constraint("Diameter", 4, Q("19 mm")),
    Sketcher.Constraint("Radius", 1, Q("12 mm")),
    Sketcher.Constraint("DistanceY", 0, 2, 0, 1, Q("10 mm")),
    Sketcher.Constraint("DistanceX", 1, 3, -1, 1, Q("33.5 mm")),
    Sketcher.Constraint("DistanceY", 1, 3, -1, 1, Q("5.334 mm")),
])
pad7 = doc.addObject("PartDesign::Pad", "Pad006")
body3.addObject(pad7)
pad7.Profile = sketch11
pad7.Length = 29
pad7.Midplane = True
doc.recompute()

fillet = doc.addObject("PartDesign::Fillet", "Fillet")
body3.addObject(fillet)
fillet.Base = (pad7, edges_at(pad7, [(37.5, -45.5, 5.833), (-37.5, -45.5, 5.833)]))
fillet.Radius = 20.828
doc.recompute()

fillet2 = doc.addObject("PartDesign::Fillet", "Fillet001")
body3.addObject(fillet2)
fillet2.Base = (fillet, edges_at(fillet, [(-37.5, 20, 5.833), (37.5, 20, 5.833)]))
fillet2.Radius = 5.588

# Sketch on XY plane
sketch12 = doc.addObject("Sketcher::SketchObject", "Sketch011")
body3.addObject(sketch12)
sketch12.AttachmentSupport = (doc.getObject("XY_Plane002"), [""])
sketch12.MapMode = "FlatFace"
sketch12.AttachmentOffset = App.Placement(V(0, 0, 4.666), App.Rotation())
sketch12.addGeometry([
    Part.LineSegment(V(-37.5, -1.5, 0), V(37.5, -1.5, 0)),
    Part.LineSegment(V(37.5, -1.5, 0), V(37.5, -5.5, 0)),
    Part.ArcOfCircle(Part.Circle(V(0, 345.0625, 0), V(0, 0, 1), 352.5625), math.radians(-96.105765), math.radians(-83.894235)),
    Part.LineSegment(V(-37.5, -5.5, 0), V(-37.5, -1.5, 0)),
], False)
sketch12.addConstraint([
    Sketcher.Constraint("Coincident", 0, 2, 1, 1),
    Sketcher.Constraint("Coincident", 1, 2, 2, 2),
    Sketcher.Constraint("Coincident", 2, 1, 3, 1),
    Sketcher.Constraint("Coincident", 3, 2, 0, 1),
    Sketcher.Constraint("Horizontal", 0),
    Sketcher.Constraint("Vertical", 1),
    Sketcher.Constraint("Vertical", 3),
    Sketcher.Constraint("Symmetric", 1, 2, 2, 1, -2),
    Sketcher.Constraint("DistanceX", 0, 1, 0, 2, Q("75 mm")),
    Sketcher.Constraint("DistanceY", 1, 2, 1, 1, Q("4 mm")),
    Sketcher.Constraint("DistanceY", 0, 2, -1, 1, Q("1.5 mm")),
    Sketcher.Constraint("Radius", 2, Q("352.5625 mm")),
])
pad8 = doc.addObject("PartDesign::Pad", "Pad007")
body3.addObject(pad8)
pad8.Profile = sketch12
pad8.Length = 21.905881
pad8.Reversed = True

# Sketch on XZ plane
sketch13 = doc.addObject("Sketcher::SketchObject", "Sketch012")
body3.addObject(sketch13)
sketch13.AttachmentSupport = (doc.getObject("XZ_Plane002"), [""])
sketch13.MapMode = "FlatFace"
sketch13.AttachmentOffset = App.Placement(V(0, 0, 1.5), App.Rotation())
sketch13.addGeometry(Part.Circle(V(34, -14.239881, 0), V(0, 0, 1), 1.8), False)
sketch13.addConstraint([
    Sketcher.Constraint("Diameter", 0, Q("3.6 mm")),
    Sketcher.Constraint("DistanceX", -1, 1, 0, 3, Q("34 mm")),
    Sketcher.Constraint("DistanceY", 0, 3, -1, 1, Q("14.239881 mm")),
])
pocket5 = doc.addObject("PartDesign::Pocket", "Pocket004")
body3.addObject(pocket5)
pocket5.Profile = sketch13
pocket5.Type = "UpToFirst"
pocket5.Reversed = True

# Sketch on XZ plane
sketch14 = doc.addObject("Sketcher::SketchObject", "Sketch013")
body3.addObject(sketch14)
sketch14.AttachmentSupport = (doc.getObject("XZ_Plane002"), [""])
sketch14.MapMode = "FlatFace"
sketch14.AttachmentOffset = App.Placement(V(0, 0, 1.5), App.Rotation())
sketch14.addGeometry(Part.Circle(V(34, 1.760119, 0), V(0, 0, 1), 1.8), False)
sketch14.addConstraint([
    Sketcher.Constraint("Diameter", 0, Q("3.6 mm")),
    Sketcher.Constraint("DistanceX", -1, 1, 0, 3, Q("34 mm")),
    Sketcher.Constraint("DistanceY", -1, 1, 0, 3, Q("1.760119 mm")),
])
pocket6 = doc.addObject("PartDesign::Pocket", "Pocket005")
body3.addObject(pocket6)
pocket6.Profile = sketch14
pocket6.Type = "UpToFirst"
pocket6.Reversed = True

# Sketch on XZ plane
sketch15 = doc.addObject("Sketcher::SketchObject", "Sketch014")
body3.addObject(sketch15)
sketch15.AttachmentSupport = (doc.getObject("XZ_Plane002"), [""])
sketch15.MapMode = "FlatFace"
sketch15.AttachmentOffset = App.Placement(V(0, 0, 1.5), App.Rotation())
sketch15.addGeometry(Part.Circle(V(-34, 1.760119, 0), V(0, 0, 1), 1.8), False)
sketch15.addConstraint([
    Sketcher.Constraint("Diameter", 0, Q("3.6 mm")),
    Sketcher.Constraint("DistanceX", 0, 3, -1, 1, Q("34 mm")),
    Sketcher.Constraint("DistanceY", -1, 1, 0, 3, Q("1.760119 mm")),
])
pocket7 = doc.addObject("PartDesign::Pocket", "Pocket006")
body3.addObject(pocket7)
pocket7.Profile = sketch15
pocket7.Type = "UpToFirst"
pocket7.Reversed = True

# Sketch on XZ plane
sketch16 = doc.addObject("Sketcher::SketchObject", "Sketch015")
body3.addObject(sketch16)
sketch16.AttachmentSupport = (doc.getObject("XZ_Plane002"), [""])
sketch16.MapMode = "FlatFace"
sketch16.AttachmentOffset = App.Placement(V(0, 0, 1.5), App.Rotation())
sketch16.addGeometry(Part.Circle(V(-34, -14.239881, 0), V(0, 0, 1), 1.8), False)
sketch16.addConstraint([
    Sketcher.Constraint("Diameter", 0, Q("3.6 mm")),
    Sketcher.Constraint("DistanceX", 0, 3, -1, 1, Q("34 mm")),
    Sketcher.Constraint("DistanceY", 0, 3, -1, 1, Q("14.239881 mm")),
])
pocket8 = doc.addObject("PartDesign::Pocket", "Pocket007")
body3.addObject(pocket8)
pocket8.Profile = sketch16
pocket8.Type = "UpToFirst"
pocket8.Reversed = True
mirroring.Visibility = False

doc.recompute()
